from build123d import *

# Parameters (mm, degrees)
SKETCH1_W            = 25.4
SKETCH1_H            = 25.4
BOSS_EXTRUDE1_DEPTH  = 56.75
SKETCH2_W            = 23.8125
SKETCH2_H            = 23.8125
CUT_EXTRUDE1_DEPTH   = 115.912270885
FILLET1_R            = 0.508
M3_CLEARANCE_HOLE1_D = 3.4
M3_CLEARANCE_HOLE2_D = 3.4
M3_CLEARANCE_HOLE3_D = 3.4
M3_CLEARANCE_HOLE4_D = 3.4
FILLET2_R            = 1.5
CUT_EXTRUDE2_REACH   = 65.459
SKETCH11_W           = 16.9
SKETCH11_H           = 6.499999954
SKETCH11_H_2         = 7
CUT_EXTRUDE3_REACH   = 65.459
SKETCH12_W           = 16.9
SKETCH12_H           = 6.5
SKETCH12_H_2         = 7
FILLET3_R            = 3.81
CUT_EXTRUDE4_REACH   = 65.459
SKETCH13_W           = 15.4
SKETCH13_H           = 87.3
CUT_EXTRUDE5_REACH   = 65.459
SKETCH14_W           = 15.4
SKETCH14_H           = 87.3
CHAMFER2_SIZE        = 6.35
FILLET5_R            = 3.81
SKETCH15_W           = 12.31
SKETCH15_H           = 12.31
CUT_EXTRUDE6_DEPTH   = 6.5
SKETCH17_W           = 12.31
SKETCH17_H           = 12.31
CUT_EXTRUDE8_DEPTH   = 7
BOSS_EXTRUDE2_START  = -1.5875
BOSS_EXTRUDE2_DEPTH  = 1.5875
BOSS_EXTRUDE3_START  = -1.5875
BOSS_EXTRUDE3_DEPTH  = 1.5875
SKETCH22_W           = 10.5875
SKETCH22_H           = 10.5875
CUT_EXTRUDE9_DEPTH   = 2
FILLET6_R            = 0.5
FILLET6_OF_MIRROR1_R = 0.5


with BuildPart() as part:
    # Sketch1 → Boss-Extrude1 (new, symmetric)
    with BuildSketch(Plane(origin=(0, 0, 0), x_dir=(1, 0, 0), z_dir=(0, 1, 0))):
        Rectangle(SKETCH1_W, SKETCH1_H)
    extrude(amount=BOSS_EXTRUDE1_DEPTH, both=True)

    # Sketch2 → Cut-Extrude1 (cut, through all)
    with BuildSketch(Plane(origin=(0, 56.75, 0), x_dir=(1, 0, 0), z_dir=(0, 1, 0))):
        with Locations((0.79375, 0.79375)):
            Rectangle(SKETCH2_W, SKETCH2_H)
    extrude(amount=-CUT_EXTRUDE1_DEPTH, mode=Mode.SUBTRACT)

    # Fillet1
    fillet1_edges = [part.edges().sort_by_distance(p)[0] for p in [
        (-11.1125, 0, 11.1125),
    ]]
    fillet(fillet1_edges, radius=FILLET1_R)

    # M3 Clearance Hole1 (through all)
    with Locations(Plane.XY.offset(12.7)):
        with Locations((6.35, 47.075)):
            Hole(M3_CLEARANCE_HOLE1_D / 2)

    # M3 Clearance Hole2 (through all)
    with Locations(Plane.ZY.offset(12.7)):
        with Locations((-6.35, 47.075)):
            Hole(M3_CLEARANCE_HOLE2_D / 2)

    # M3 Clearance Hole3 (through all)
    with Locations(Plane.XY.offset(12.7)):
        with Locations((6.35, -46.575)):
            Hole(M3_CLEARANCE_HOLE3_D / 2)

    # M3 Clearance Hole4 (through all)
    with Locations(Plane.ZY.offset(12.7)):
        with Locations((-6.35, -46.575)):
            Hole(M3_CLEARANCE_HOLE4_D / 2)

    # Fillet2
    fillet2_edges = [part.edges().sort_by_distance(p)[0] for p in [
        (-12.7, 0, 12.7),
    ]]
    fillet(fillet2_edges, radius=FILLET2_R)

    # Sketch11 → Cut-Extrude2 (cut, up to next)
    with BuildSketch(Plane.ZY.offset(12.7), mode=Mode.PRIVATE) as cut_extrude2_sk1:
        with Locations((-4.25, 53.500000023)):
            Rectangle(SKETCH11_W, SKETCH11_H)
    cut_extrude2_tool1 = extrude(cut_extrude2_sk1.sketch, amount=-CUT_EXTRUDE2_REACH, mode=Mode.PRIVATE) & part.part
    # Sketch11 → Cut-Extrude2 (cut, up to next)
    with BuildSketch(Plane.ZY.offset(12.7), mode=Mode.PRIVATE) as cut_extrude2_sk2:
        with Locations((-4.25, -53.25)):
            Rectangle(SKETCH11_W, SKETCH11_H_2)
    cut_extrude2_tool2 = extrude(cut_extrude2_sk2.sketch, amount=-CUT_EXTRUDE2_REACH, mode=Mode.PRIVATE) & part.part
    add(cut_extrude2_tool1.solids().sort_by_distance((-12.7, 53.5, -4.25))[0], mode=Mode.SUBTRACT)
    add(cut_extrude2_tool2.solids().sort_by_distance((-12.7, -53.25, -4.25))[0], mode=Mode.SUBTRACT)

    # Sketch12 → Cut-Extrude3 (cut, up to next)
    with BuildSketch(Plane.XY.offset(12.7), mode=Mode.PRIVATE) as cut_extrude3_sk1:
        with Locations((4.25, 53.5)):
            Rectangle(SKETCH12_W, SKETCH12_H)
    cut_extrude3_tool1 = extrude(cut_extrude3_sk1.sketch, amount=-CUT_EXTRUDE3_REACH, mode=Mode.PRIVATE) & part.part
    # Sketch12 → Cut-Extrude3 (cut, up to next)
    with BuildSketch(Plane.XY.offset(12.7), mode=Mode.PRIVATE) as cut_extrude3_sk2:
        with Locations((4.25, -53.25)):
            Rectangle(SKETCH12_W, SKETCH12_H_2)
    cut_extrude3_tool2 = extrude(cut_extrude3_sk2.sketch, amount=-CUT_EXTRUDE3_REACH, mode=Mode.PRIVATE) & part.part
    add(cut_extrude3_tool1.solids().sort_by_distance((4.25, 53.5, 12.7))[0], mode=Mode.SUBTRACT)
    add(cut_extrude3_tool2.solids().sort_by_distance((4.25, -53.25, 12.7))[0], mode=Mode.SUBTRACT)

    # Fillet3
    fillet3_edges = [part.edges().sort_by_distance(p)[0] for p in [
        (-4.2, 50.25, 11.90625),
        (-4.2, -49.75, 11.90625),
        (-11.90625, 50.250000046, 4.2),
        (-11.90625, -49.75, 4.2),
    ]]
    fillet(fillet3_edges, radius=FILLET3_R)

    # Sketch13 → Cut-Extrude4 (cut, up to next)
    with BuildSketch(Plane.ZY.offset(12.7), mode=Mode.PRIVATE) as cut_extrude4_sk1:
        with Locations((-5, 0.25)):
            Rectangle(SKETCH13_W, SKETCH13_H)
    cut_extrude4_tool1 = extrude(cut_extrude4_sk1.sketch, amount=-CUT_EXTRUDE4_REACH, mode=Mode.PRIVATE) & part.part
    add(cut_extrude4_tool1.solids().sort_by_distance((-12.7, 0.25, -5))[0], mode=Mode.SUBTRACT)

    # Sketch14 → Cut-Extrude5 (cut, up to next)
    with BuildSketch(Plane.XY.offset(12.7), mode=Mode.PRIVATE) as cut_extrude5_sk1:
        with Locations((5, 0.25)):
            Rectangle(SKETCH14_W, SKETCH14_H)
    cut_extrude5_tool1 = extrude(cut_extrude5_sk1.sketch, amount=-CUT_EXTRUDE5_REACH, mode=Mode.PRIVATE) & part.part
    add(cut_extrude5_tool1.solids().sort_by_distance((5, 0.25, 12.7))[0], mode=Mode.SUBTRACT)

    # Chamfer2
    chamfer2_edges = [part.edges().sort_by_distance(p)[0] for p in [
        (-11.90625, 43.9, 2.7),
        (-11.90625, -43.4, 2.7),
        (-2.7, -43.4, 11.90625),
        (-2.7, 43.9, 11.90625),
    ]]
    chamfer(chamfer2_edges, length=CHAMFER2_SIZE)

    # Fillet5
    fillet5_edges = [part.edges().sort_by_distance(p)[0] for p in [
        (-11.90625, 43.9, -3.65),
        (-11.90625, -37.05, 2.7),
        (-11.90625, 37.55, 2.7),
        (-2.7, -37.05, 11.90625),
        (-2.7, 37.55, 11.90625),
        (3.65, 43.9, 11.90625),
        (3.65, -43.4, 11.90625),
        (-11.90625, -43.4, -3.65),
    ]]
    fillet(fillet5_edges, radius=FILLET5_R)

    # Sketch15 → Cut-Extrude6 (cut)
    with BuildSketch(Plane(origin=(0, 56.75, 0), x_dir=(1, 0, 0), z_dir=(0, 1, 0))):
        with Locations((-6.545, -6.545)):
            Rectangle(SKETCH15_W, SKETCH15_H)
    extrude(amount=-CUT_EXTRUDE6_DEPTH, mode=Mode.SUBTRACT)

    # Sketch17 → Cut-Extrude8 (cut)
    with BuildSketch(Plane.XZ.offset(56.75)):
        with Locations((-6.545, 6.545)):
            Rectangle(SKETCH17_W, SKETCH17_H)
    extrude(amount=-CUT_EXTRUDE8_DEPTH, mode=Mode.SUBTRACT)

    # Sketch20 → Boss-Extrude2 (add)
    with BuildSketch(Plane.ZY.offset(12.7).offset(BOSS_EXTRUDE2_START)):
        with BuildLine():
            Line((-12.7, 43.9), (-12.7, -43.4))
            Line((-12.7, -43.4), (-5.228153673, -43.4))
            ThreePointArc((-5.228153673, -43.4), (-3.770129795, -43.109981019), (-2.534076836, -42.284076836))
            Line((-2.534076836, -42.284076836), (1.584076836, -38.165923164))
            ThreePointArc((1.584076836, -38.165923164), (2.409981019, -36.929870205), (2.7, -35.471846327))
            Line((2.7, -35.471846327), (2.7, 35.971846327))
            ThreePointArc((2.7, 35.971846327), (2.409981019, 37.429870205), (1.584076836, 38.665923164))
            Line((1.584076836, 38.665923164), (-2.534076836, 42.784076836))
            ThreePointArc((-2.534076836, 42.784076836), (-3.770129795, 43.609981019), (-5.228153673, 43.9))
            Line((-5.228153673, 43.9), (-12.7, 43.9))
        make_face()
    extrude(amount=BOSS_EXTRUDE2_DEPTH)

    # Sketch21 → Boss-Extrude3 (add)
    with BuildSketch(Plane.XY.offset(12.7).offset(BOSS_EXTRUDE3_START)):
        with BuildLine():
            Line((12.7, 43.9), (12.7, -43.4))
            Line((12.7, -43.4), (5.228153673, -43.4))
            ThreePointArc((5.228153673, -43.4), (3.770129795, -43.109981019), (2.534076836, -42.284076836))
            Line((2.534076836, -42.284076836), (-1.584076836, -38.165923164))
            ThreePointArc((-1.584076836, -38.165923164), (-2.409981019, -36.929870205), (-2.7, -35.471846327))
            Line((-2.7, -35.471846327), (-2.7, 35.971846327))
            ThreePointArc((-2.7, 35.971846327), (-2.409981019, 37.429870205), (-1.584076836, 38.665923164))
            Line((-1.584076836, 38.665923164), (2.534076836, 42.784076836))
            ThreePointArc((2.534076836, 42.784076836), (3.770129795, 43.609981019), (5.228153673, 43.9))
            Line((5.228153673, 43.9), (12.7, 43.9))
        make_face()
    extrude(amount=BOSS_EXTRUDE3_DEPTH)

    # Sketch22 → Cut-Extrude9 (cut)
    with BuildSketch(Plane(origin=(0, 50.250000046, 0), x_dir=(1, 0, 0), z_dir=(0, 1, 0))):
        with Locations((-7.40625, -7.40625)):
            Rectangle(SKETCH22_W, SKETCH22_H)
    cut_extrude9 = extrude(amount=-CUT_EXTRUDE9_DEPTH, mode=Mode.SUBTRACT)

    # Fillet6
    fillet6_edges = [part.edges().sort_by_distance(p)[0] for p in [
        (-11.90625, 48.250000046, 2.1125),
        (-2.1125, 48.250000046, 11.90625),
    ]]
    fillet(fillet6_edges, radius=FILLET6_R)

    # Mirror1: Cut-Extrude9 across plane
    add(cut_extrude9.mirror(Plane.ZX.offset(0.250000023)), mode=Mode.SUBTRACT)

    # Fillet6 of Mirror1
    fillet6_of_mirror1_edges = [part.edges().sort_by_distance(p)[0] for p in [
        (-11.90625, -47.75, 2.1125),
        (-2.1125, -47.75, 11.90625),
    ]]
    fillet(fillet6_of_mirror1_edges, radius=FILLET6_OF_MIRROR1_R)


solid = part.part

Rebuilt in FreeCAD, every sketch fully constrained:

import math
import FreeCAD as App
import Part
import Sketcher


def edges_at(feature, points):
    """Names of the edges that pass closest to the given points."""
    edges = feature.Shape.Edges
    near = lambda p: min(range(len(edges)), key=lambda i: edges[i].distToShape(Part.Vertex(*p))[0])
    return sorted({f"Edge{near(p) + 1}" for p in points})


def add_polygon(sketch, points):
    """Adds a closed chain of lines whose ends are joined by coincident constraints."""
    first, n = sketch.GeometryCount, len(points)
    for a, b in zip(points, points[1:] + points[:1]):
        sketch.addGeometry(Part.LineSegment(App.Vector(*a, 0), App.Vector(*b, 0)), False)
    for i in range(n):
        sketch.addConstraint(Sketcher.Constraint("Coincident", first + i, 2, first + (i + 1) % n, 1))

doc = App.newDocument("Part")
params = doc.addObject("Spreadsheet::Sheet", "Params")
for row, (alias, value) in enumerate([
    ("sketch1_width", "25.4 mm"),
    ("pad1_length", "113.5 mm"),
    ("fillet_radius", "0.508 mm"),
    ("sketch3_diameter", "3.4 mm"),
    ("hole_diameter", "3.4 mm"),
    ("sketch4_diameter", "3.4 mm"),
    ("hole2_diameter", "3.4 mm"),
    ("sketch5_diameter", "3.4 mm"),
    ("hole3_diameter", "3.4 mm"),
    ("sketch6_diameter", "3.4 mm"),
    ("hole4_diameter", "3.4 mm"),
    ("fillet2_radius", "1.5 mm"),
    ("sketch7_width", "6.5 mm"),
    ("sketch7_height", "16.9 mm"),
    ("sketch8_width", "7 mm"),
    ("sketch8_height", "16.9 mm"),
    ("sketch9_width", "16.9 mm"),
    ("sketch9_height", "6.5 mm"),
    ("sketch10_height", "7 mm"),
    ("sketch10_width", "16.9 mm"),
    ("fillet3_radius", "3.81 mm"),
    ("sketch11_width", "87.3 mm"),
    ("sketch11_height", "15.4 mm"),
    ("sketch12_width", "15.4 mm"),
    ("sketch12_height", "87.3 mm"),
    ("chamfer_size", "6.35 mm"),
    ("fillet4_radius", "3.81 mm"),
    ("sketch13_width", "12.31 mm"),
    ("pocket8_length", "6.5 mm"),
    ("sketch14_width", "12.31 mm"),
    ("pocket9_length", "7 mm"),
    ("sketch15_radius", "3.81 mm"),
    ("sketch15_width", "87.3 mm"),
    ("pad2_length", "1.5875 mm"),
    ("sketch16_radius", "3.81 mm"),
    ("sketch16_height", "87.3 mm"),
    ("pad3_length", "1.5875 mm"),
    ("pocket10_length", "2 mm"),
    ("fillet5_radius", "0.5 mm"),
    ("fillet6_radius", "0.5 mm"),
], start=1):
    params.set(f"A{row}", alias)
    params.set(f"B{row}", "=" + value)
    params.setAlias(f"B{row}", alias)

body = doc.addObject("PartDesign::Body", "Body")

sketch1 = body.newObject("Sketcher::SketchObject", "Sketch")
sketch1.AttachmentSupport = (doc.getObject("XZ_Plane"), [""])
sketch1.MapMode = "FlatFace"
add_polygon(sketch1, [(-13, -13), (-13, 13), (13, 13), (13, -13)])
sketch1.addConstraint([
    Sketcher.Constraint("Vertical", 0),
    Sketcher.Constraint("Horizontal", 1),
    Sketcher.Constraint("Vertical", 2),
    Sketcher.Constraint("Horizontal", 3),
    Sketcher.Constraint("Symmetric", 0, 2, 2, 2, -1, 1),
    Sketcher.Constraint("Equal", 3, 0),
    Sketcher.Constraint("DistanceX", 1, 1, 1, 2, 25.4),
])
sketch1.setExpression("Constraints[10]", "Params.sketch1_width")
pad1 = body.newObject("PartDesign::Pad", "Pad")
pad1.Profile = sketch1
pad1.setExpression("Length", "Params.pad1_length")
pad1.Midplane = True

sketch2 = body.newObject("Sketcher::SketchObject", "Sketch001")
sketch2.AttachmentSupport = (doc.getObject("XZ_Plane"), [""])
sketch2.MapMode = "FlatFace"
sketch2.AttachmentOffset = App.Placement(App.Vector(0, 0, -56.75), App.Rotation())
add_polygon(sketch2, [(-11, -13), (-11, 11), (13, 11), (13, -13)])
sketch2.addConstraint([
    Sketcher.Constraint("Vertical", 0),
    Sketcher.Constraint("Horizontal", 1),
    Sketcher.Constraint("Vertical", 2),
    Sketcher.Constraint("Horizontal", 3),
    Sketcher.Constraint("Equal", 3, 0),
    Sketcher.Constraint("DistanceX", -1, 1, 1, 2, 12.7),
    Sketcher.Constraint("DistanceY", 2, 2, -1, 1, 12.7),
    Sketcher.Constraint("DistanceX", 1, 1, 1, 2, 23.8125),
])
pocket1 = body.newObject("PartDesign::Pocket", "Pocket")
pocket1.Profile = sketch2
pocket1.Type = "ThroughAll"
pocket1.Reversed = True
doc.recompute()

fillet = body.newObject("PartDesign::Fillet", "Fillet")
fillet.Base = (pocket1, edges_at(pocket1, [(-11.113, 0, 11.113)]))
fillet.setExpression("Radius", "Params.fillet_radius")

sketch3 = body.newObject("Sketcher::SketchObject", "Sketch002")
sketch3.AttachmentSupport = (doc.getObject("XY_Plane"), [""])
sketch3.MapMode = "FlatFace"
sketch3.AttachmentOffset = App.Placement(App.Vector(0, 0, 12.7), App.Rotation())
sketch3.addGeometry(Part.Circle(App.Vector(6.3, 47.1, 0), App.Vector(0, 0, 1), 1.7), False)
sketch3.addConstraint([
    Sketcher.Constraint("Diameter", 0, 3.4),
    Sketcher.Constraint("DistanceX", -1, 1, 0, 3, 6.35),
    Sketcher.Constraint("DistanceY", -1, 1, 0, 3, 47.075),
])
sketch3.setExpression("Constraints[0]", "Params.sketch3_diameter")
doc.recompute()
hole = body.newObject("PartDesign::Hole", "Hole")
hole.Profile = sketch3
hole.ThreadType = "None"
hole.setExpression("Diameter", "Params.hole_diameter")
hole.DepthType = "ThroughAll"

sketch4 = body.newObject("Sketcher::SketchObject", "Sketch003")
sketch4.AttachmentSupport = (doc.getObject("YZ_Plane"), [""])
sketch4.MapMode = "FlatFace"
sketch4.AttachmentOffset = App.Placement(App.Vector(0, 0, -12.7), App.Rotation())
sketch4.addGeometry(Part.Circle(App.Vector(47.1, -6.3, 0), App.Vector(0, 0, 1), 1.7), False)
sketch4.addConstraint([
    Sketcher.Constraint("Diameter", 0, 3.4),
    Sketcher.Constraint("DistanceY", 0, 3, -1, 1, 6.35),
    Sketcher.Constraint("DistanceX", -1, 1, 0, 3, 47.075),
])
sketch4.setExpression("Constraints[0]", "Params.sketch4_diameter")
doc.recompute()
hole2 = body.newObject("PartDesign::Hole", "Hole001")
hole2.Profile = sketch4
hole2.ThreadType = "None"
hole2.setExpression("Diameter", "Params.hole2_diameter")
hole2.DepthType = "ThroughAll"
hole2.Reversed = True

sketch5 = body.newObject("Sketcher::SketchObject", "Sketch004")
sketch5.AttachmentSupport = (doc.getObject("XY_Plane"), [""])
sketch5.MapMode = "FlatFace"
sketch5.AttachmentOffset = App.Placement(App.Vector(0, 0, 12.7), App.Rotation())
sketch5.addGeometry(Part.Circle(App.Vector(6.3, -46.6, 0), App.Vector(0, 0, 1), 1.7), False)
sketch5.addConstraint([
    Sketcher.Constraint("Diameter", 0, 3.4),
    Sketcher.Constraint("DistanceX", -1, 1, 0, 3, 6.35),
    Sketcher.Constraint("DistanceY", 0, 3, -1, 1, 46.575),
])
sketch5.setExpression("Constraints[0]", "Params.sketch5_diameter")
doc.recompute()
hole3 = body.newObject("PartDesign::Hole", "Hole002")
hole3.Profile = sketch5
hole3.ThreadType = "None"
hole3.setExpression("Diameter", "Params.hole3_diameter")
hole3.DepthType = "ThroughAll"

sketch6 = body.newObject("Sketcher::SketchObject", "Sketch005")
sketch6.AttachmentSupport = (doc.getObject("YZ_Plane"), [""])
sketch6.MapMode = "FlatFace"
sketch6.AttachmentOffset = App.Placement(App.Vector(0, 0, -12.7), App.Rotation())
sketch6.addGeometry(Part.Circle(App.Vector(-46.6, -6.3, 0), App.Vector(0, 0, 1), 1.7), False)
sketch6.addConstraint([
    Sketcher.Constraint("Diameter", 0, 3.4),
    Sketcher.Constraint("DistanceY", 0, 3, -1, 1, 6.35),
    Sketcher.Constraint("DistanceX", 0, 3, -1, 1, 46.575),
])
sketch6.setExpression("Constraints[0]", "Params.sketch6_diameter")
doc.recompute()
hole4 = body.newObject("PartDesign::Hole", "Hole003")
hole4.Profile = sketch6
hole4.ThreadType = "None"
hole4.setExpression("Diameter", "Params.hole4_diameter")
hole4.DepthType = "ThroughAll"
hole4.Reversed = True
doc.recompute()

fillet2 = body.newObject("PartDesign::Fillet", "Fillet001")
fillet2.Base = (hole4, edges_at(hole4, [(-12.7, 0, 12.7)]))
fillet2.setExpression("Radius", "Params.fillet2_radius")

sketch7 = body.newObject("Sketcher::SketchObject", "Sketch006")
sketch7.AttachmentSupport = (doc.getObject("YZ_Plane"), [""])
sketch7.MapMode = "FlatFace"
sketch7.AttachmentOffset = App.Placement(App.Vector(0, 0, -12.7), App.Rotation())
add_polygon(sketch7, [(57, -13), (50, -13), (50, 4), (57, 4)])
sketch7.addConstraint([
    Sketcher.Constraint("Horizontal", 0),
    Sketcher.Constraint("Vertical", 1),
    Sketcher.Constraint("Horizontal", 2),
    Sketcher.Constraint("Vertical", 3),
    Sketcher.Constraint("DistanceX", 0, 2, 0, 1, 6.5),
    Sketcher.Constraint("DistanceY", 1, 1, 1, 2, 16.9),
    Sketcher.Constraint("DistanceY", 0, 2, -1, 1, 12.7),
    Sketcher.Constraint("DistanceX", -1, 1, 0, 2, 50.25),
])
sketch7.setExpression("Constraints[8]", "Params.sketch7_width")
sketch7.setExpression("Constraints[9]", "Params.sketch7_height")
pocket2 = body.newObject("PartDesign::Pocket", "Pocket001")
pocket2.Profile = sketch7
pocket2.Type = "UpToFirst"
pocket2.Reversed = True

sketch8 = body.newObject("Sketcher::SketchObject", "Sketch007")
sketch8.AttachmentSupport = (doc.getObject("YZ_Plane"), [""])
sketch8.MapMode = "FlatFace"
sketch8.AttachmentOffset = App.Placement(App.Vector(0, 0, -12.7), App.Rotation())
add_polygon(sketch8, [(-50, -13), (-57, -13), (-57, 4), (-50, 4)])
sketch8.addConstraint([
    Sketcher.Constraint("Horizontal", 0),
    Sketcher.Constraint("Vertical", 1),
    Sketcher.Constraint("Horizontal", 2),
    Sketcher.Constraint("Vertical", 3),
    Sketcher.Constraint("DistanceX", 0, 2, 0, 1, 7.0),
    Sketcher.Constraint("DistanceY", 1, 1, 1, 2, 16.9),
    Sketcher.Constraint("DistanceY", 0, 2, -1, 1, 12.7),
    Sketcher.Constraint("DistanceX", 0, 2, -1, 1, 56.75),
])
sketch8.setExpression("Constraints[8]", "Params.sketch8_width")
sketch8.setExpression("Constraints[9]", "Params.sketch8_height")
pocket3 = body.newObject("PartDesign::Pocket", "Pocket002")
pocket3.Profile = sketch8
pocket3.Type = "UpToFirst"
pocket3.Reversed = True

sketch9 = body.newObject("Sketcher::SketchObject", "Sketch008")
sketch9.AttachmentSupport = (doc.getObject("XY_Plane"), [""])
sketch9.MapMode = "FlatFace"
sketch9.AttachmentOffset = App.Placement(App.Vector(0, 0, 12.7), App.Rotation())
add_polygon(sketch9, [(-4, 57), (-4, 50), (13, 50), (13, 57)])
sketch9.addConstraint([
    Sketcher.Constraint("Vertical", 0),
    Sketcher.Constraint("Horizontal", 1),
    Sketcher.Constraint("Vertical", 2),
    Sketcher.Constraint("Horizontal", 3),
    Sketcher.Constraint("DistanceX", 1, 1, 1, 2, 16.9),
    Sketcher.Constraint("DistanceY", 0, 2, 0, 1, 6.5),
    Sketcher.Constraint("DistanceX", 0, 2, -1, 1, 4.2),
    Sketcher.Constraint("DistanceY", -1, 1, 0, 2, 50.25),
])
sketch9.setExpression("Constraints[8]", "Params.sketch9_width")
sketch9.setExpression("Constraints[9]", "Params.sketch9_height")
pocket4 = body.newObject("PartDesign::Pocket", "Pocket003")
pocket4.Profile = sketch9
pocket4.Type = "UpToFirst"

sketch10 = body.newObject("Sketcher::SketchObject", "Sketch009")
sketch10.AttachmentSupport = (doc.getObject("XY_Plane"), [""])
sketch10.MapMode = "FlatFace"
sketch10.AttachmentOffset = App.Placement(App.Vector(0, 0, 12.7), App.Rotation())
add_polygon(sketch10, [(-4, -50), (-4, -57), (13, -57), (13, -50)])
sketch10.addConstraint([
    Sketcher.Constraint("Vertical", 0),
    Sketcher.Constraint("Horizontal", 1),
    Sketcher.Constraint("Vertical", 2),
    Sketcher.Constraint("Horizontal", 3),
    Sketcher.Constraint("DistanceY", 0, 2, 0, 1, 7.0),
    Sketcher.Constraint("DistanceX", 1, 1, 1, 2, 16.9),
    Sketcher.Constraint("DistanceX", 0, 2, -1, 1, 4.2),
    Sketcher.Constraint("DistanceY", 0, 2, -1, 1, 56.75),
])
sketch10.setExpression("Constraints[8]", "Params.sketch10_height")
sketch10.setExpression("Constraints[9]", "Params.sketch10_width")
pocket5 = body.newObject("PartDesign::Pocket", "Pocket004")
pocket5.Profile = sketch10
pocket5.Type = "UpToFirst"
doc.recompute()

fillet3 = body.newObject("PartDesign::Fillet", "Fillet002")
fillet3.Base = (pocket5, edges_at(pocket5, [
    (-4.2, 50.25, 11.906),
    (-4.2, -49.75, 11.906),
    (-11.906, 50.25, 4.2),
    (-11.906, -49.75, 4.2),
]))
fillet3.setExpression("Radius", "Params.fillet3_radius")

sketch11 = body.newObject("Sketcher::SketchObject", "Sketch010")
sketch11.AttachmentSupport = (doc.getObject("YZ_Plane"), [""])
sketch11.MapMode = "FlatFace"
sketch11.AttachmentOffset = App.Placement(App.Vector(0, 0, -12.7), App.Rotation())
add_polygon(sketch11, [(44, -13), (-43, -13), (-43, 3), (44, 3)])
sketch11.addConstraint([
    Sketcher.Constraint("Horizontal", 0),
    Sketcher.Constraint("Vertical", 1),
    Sketcher.Constraint("Horizontal", 2),
    Sketcher.Constraint("Vertical", 3),
    Sketcher.Constraint("DistanceX", 0, 2, 0, 1, 87.3),
    Sketcher.Constraint("DistanceY", 1, 1, 1, 2, 15.4),
    Sketcher.Constraint("DistanceX", 0, 2, -1, 1, 43.4),
    Sketcher.Constraint("DistanceY", 0, 2, -1, 1, 12.7),
])
sketch11.setExpression("Constraints[8]", "Params.sketch11_width")
sketch11.setExpression("Constraints[9]", "Params.sketch11_height")
pocket6 = body.newObject("PartDesign::Pocket", "Pocket005")
pocket6.Profile = sketch11
pocket6.Type = "UpToFirst"
pocket6.Reversed = True

sketch12 = body.newObject("Sketcher::SketchObject", "Sketch011")
sketch12.AttachmentSupport = (doc.getObject("XY_Plane"), [""])
sketch12.MapMode = "FlatFace"
sketch12.AttachmentOffset = App.Placement(App.Vector(0, 0, 12.7), App.Rotation())
add_polygon(sketch12, [(-3, 44), (-3, -43), (13, -43), (13, 44)])
sketch12.addConstraint([
    Sketcher.Constraint("Vertical", 0),
    Sketcher.Constraint("Horizontal", 1),
    Sketcher.Constraint("Vertical", 2),
    Sketcher.Constraint("Horizontal", 3),
    Sketcher.Constraint("DistanceX", 1, 1, 1, 2, 15.4),
    Sketcher.Constraint("DistanceY", 0, 2, 0, 1, 87.3),
    Sketcher.Constraint("DistanceX", 0, 2, -1, 1, 2.7),
    Sketcher.Constraint("DistanceY", 0, 2, -1, 1, 43.4),
])
sketch12.setExpression("Constraints[8]", "Params.sketch12_width")
sketch12.setExpression("Constraints[9]", "Params.sketch12_height")
pocket7 = body.newObject("PartDesign::Pocket", "Pocket006")
pocket7.Profile = sketch12
pocket7.Type = "UpToFirst"
doc.recompute()

chamfer = body.newObject("PartDesign::Chamfer", "Chamfer")
chamfer.Base = (pocket7, edges_at(pocket7, [
    (-11.906, 43.9, 2.7),
    (-11.906, -43.4, 2.7),
    (-2.7, -43.4, 11.906),
    (-2.7, 43.9, 11.906),
]))
chamfer.setExpression("Size", "Params.chamfer_size")
doc.recompute()

fillet4 = body.newObject("PartDesign::Fillet", "Fillet003")
fillet4.Base = (chamfer, edges_at(chamfer, [
    (-11.906, 43.9, -3.65),
    (-11.906, -37.05, 2.7),
    (-11.906, 37.55, 2.7),
    (-2.7, -37.05, 11.906),
    (-2.7, 37.55, 11.906),
    (3.65, 43.9, 11.906),
    (3.65, -43.4, 11.906),
    (-11.906, -43.4, -3.65),
]))
fillet4.setExpression("Radius", "Params.fillet4_radius")

sketch13 = body.newObject("Sketcher::SketchObject", "Sketch012")
sketch13.AttachmentSupport = (doc.getObject("XZ_Plane"), [""])
sketch13.MapMode = "FlatFace"
sketch13.AttachmentOffset = App.Placement(App.Vector(0, 0, -56.75), App.Rotation())
add_polygon(sketch13, [(-13, 0), (-13, 13), (0, 13), (0, 0)])
sketch13.addConstraint([
    Sketcher.Constraint("Vertical", 0),
    Sketcher.Constraint("Horizontal", 1),
    Sketcher.Constraint("Vertical", 2),
    Sketcher.Constraint("Horizontal", 3),
    Sketcher.Constraint("Equal", 3, 0),
    Sketcher.Constraint("DistanceX", 1, 1, 1, 2, 12.31),
    Sketcher.Constraint("DistanceX", 0, 2, -1, 1, 12.7),
    Sketcher.Constraint("DistanceY", -1, 1, 0, 2, 12.7),
])
sketch13.setExpression("Constraints[9]", "Params.sketch13_width")
pocket8 = body.newObject("PartDesign::Pocket", "Pocket007")
pocket8.Profile = sketch13
pocket8.setExpression("Length", "Params.pocket8_length")
pocket8.Reversed = True

sketch14 = body.newObject("Sketcher::SketchObject", "Sketch013")
sketch14.AttachmentSupport = (doc.getObject("XZ_Plane"), [""])
sketch14.MapMode = "FlatFace"
sketch14.AttachmentOffset = App.Placement(App.Vector(0, 0, 56.75), App.Rotation())
add_polygon(sketch14, [(-13, 13), (-13, 0), (0, 0), (0, 13)])
sketch14.addConstraint([
    Sketcher.Constraint("Vertical", 0),
    Sketcher.Constraint("Horizontal", 1),
    Sketcher.Constraint("Vertical", 2),
    Sketcher.Constraint("Horizontal", 3),
    Sketcher.Constraint("Equal", 3, 0),
    Sketcher.Constraint("DistanceX", 1, 1, 1, 2, 12.31),
    Sketcher.Constraint("DistanceX", 0, 2, -1, 1, 12.7),
    Sketcher.Constraint("DistanceY", -1, 1, 2, 2, 12.7),
])
sketch14.setExpression("Constraints[9]", "Params.sketch14_width")
pocket9 = body.newObject("PartDesign::Pocket", "Pocket008")
pocket9.Profile = sketch14
pocket9.setExpression("Length", "Params.pocket9_length")

sketch15 = body.newObject("Sketcher::SketchObject", "Sketch014")
sketch15.AttachmentSupport = (doc.getObject("YZ_Plane"), [""])
sketch15.MapMode = "FlatFace"
sketch15.AttachmentOffset = App.Placement(App.Vector(0, 0, -11.1125), App.Rotation())
sketch15.addGeometry([
    Part.LineSegment(App.Vector(43.9, -12.7, 0), App.Vector(-43.4, -12.7, 0)),
    Part.LineSegment(App.Vector(-43.4, -12.7, 0), App.Vector(-43.4, -5.2, 0)),
    Part.ArcOfCircle(Part.Circle(App.Vector(-39.6, -5.2, 0), App.Vector(0, 0, 1), 3.8), math.radians(135), math.radians(180)),
    Part.LineSegment(App.Vector(-42.3, -2.5, 0), App.Vector(-38.2, 1.6, 0)),
    Part.ArcOfCircle(Part.Circle(App.Vector(-35.5, -1.1, 0), App.Vector(0, 0, 1), 3.8), math.radians(90), math.radians(135)),
    Part.LineSegment(App.Vector(-35.5, 2.7, 0), App.Vector(36, 2.7, 0)),
    Part.ArcOfCircle(Part.Circle(App.Vector(36, -1.1, 0), App.Vector(0, 0, 1), 3.8), math.radians(45), math.radians(90)),
    Part.LineSegment(App.Vector(38.7, 1.6, 0), App.Vector(42.8, -2.5, 0)),
    Part.ArcOfCircle(Part.Circle(App.Vector(40.1, -5.2, 0), App.Vector(0, 0, 1), 3.8), math.radians(0), math.radians(45)),
    Part.LineSegment(App.Vector(43.9, -5.2, 0), App.Vector(43.9, -12.7, 0)),
], False)
sketch15.addConstraint([
    Sketcher.Constraint("Coincident", 0, 2, 1, 1),
    Sketcher.Constraint("Tangent", 1, 2, 2, 2),
    Sketcher.Constraint("Tangent", 2, 1, 3, 1),
    Sketcher.Constraint("Tangent", 3, 2, 4, 2),
    Sketcher.Constraint("Tangent", 4, 1, 5, 1),
    Sketcher.Constraint("Tangent", 5, 2, 6, 2),
    Sketcher.Constraint("Tangent", 6, 1, 7, 1),
    Sketcher.Constraint("Tangent", 7, 2, 8, 2),
    Sketcher.Constraint("Tangent", 8, 1, 9, 1),
    Sketcher.Constraint("Coincident", 9, 2, 0, 1),
    Sketcher.Constraint("Horizontal", 0),
    Sketcher.Constraint("Vertical", 1),
    Sketcher.Constraint("Horizontal", 5),
    Sketcher.Constraint("Vertical", 9),
    Sketcher.Constraint("Equal", 2, 4),
    Sketcher.Constraint("Equal", 4, 6),
    Sketcher.Constraint("Equal", 6, 8),
    Sketcher.Constraint("Perpendicular", 3, 7),
    Sketcher.Constraint("Horizontal", 2, 3, 8, 3),
    Sketcher.Constraint("Horizontal", 3, 2, 6, 1),
    Sketcher.Constraint("Radius", 2, 3.81),
    Sketcher.Constraint("DistanceX", 0, 2, 0, 1, 87.3),
    Sketcher.Constraint("DistanceX", 0, 2, -1, 1, 43.4),
    Sketcher.Constraint("DistanceY", 0, 2, -1, 1, 12.7),
    Sketcher.Constraint("DistanceY", -1, 1, 4, 1, 2.7),
    Sketcher.Constraint("Distance", 3, 5.823949),
])
sketch15.setExpression("Constraints[20]", "Params.sketch15_radius")
sketch15.setExpression("Constraints[21]", "Params.sketch15_width")
pad2 = body.newObject("PartDesign::Pad", "Pad001")
pad2.Profile = sketch15
pad2.setExpression("Length", "Params.pad2_length")
pad2.Reversed = True

sketch16 = body.newObject("Sketcher::SketchObject", "Sketch015")
sketch16.AttachmentSupport = (doc.getObject("XY_Plane"), [""])
sketch16.MapMode = "FlatFace"
sketch16.AttachmentOffset = App.Placement(App.Vector(0, 0, 11.1125), App.Rotation())
sketch16.addGeometry([
    Part.LineSegment(App.Vector(12.7, -43.4, 0), App.Vector(12.7, 43.9, 0)),
    Part.LineSegment(App.Vector(12.7, 43.9, 0), App.Vector(5.2, 43.9, 0)),
    Part.ArcOfCircle(Part.Circle(App.Vector(5.2, 40.1, 0), App.Vector(0, 0, 1), 3.8), math.radians(90), math.radians(135)),
    Part.LineSegment(App.Vector(2.5, 42.8, 0), App.Vector(-1.6, 38.7, 0)),
    Part.ArcOfCircle(Part.Circle(App.Vector(1.1, 36, 0), App.Vector(0, 0, 1), 3.8), math.radians(135), math.radians(180)),
    Part.LineSegment(App.Vector(-2.7, 36, 0), App.Vector(-2.7, -35.5, 0)),
    Part.ArcOfCircle(Part.Circle(App.Vector(1.1, -35.5, 0), App.Vector(0, 0, 1), 3.8), math.radians(180), math.radians(225)),
    Part.LineSegment(App.Vector(-1.6, -38.2, 0), App.Vector(2.5, -42.3, 0)),
    Part.ArcOfCircle(Part.Circle(App.Vector(5.2, -39.6, 0), App.Vector(0, 0, 1), 3.8), math.radians(-135), math.radians(-90)),
    Part.LineSegment(App.Vector(5.2, -43.4, 0), App.Vector(12.7, -43.4, 0)),
], False)
sketch16.addConstraint([
    Sketcher.Constraint("Coincident", 0, 2, 1, 1),
    Sketcher.Constraint("Tangent", 1, 2, 2, 1),
    Sketcher.Constraint("Tangent", 2, 2, 3, 1),
    Sketcher.Constraint("Tangent", 3, 2, 4, 1),
    Sketcher.Constraint("Tangent", 4, 2, 5, 1),
    Sketcher.Constraint("Tangent", 5, 2, 6, 1),
    Sketcher.Constraint("Tangent", 6, 2, 7, 1),
    Sketcher.Constraint("Tangent", 7, 2, 8, 1),
    Sketcher.Constraint("Tangent", 8, 2, 9, 1),
    Sketcher.Constraint("Coincident", 9, 2, 0, 1),
    Sketcher.Constraint("Vertical", 0),
    Sketcher.Constraint("Horizontal", 1),
    Sketcher.Constraint("Vertical", 5),
    Sketcher.Constraint("Horizontal", 9),
    Sketcher.Constraint("Equal", 2, 4),
    Sketcher.Constraint("Equal", 4, 6),
    Sketcher.Constraint("Equal", 6, 8),
    Sketcher.Constraint("Perpendicular", 3, 7),
    Sketcher.Constraint("Vertical", 2, 3, 8, 3),
    Sketcher.Constraint("Vertical", 3, 2, 6, 2),
    Sketcher.Constraint("Radius", 2, 3.81),
    Sketcher.Constraint("DistanceY", 0, 1, 0, 2, 87.3),
    Sketcher.Constraint("DistanceX", -1, 1, 0, 2, 12.7),
    Sketcher.Constraint("DistanceY", -1, 1, 0, 2, 43.9),
    Sketcher.Constraint("DistanceX", 4, 2, -1, 1, 2.7),
    Sketcher.Constraint("Distance", 3, 5.823949),
])
sketch16.setExpression("Constraints[20]", "Params.sketch16_radius")
sketch16.setExpression("Constraints[21]", "Params.sketch16_height")
pad3 = body.newObject("PartDesign::Pad", "Pad002")
pad3.Profile = sketch16
pad3.setExpression("Length", "Params.pad3_length")

sketch17 = body.newObject("Sketcher::SketchObject", "Sketch016")
sketch17.AttachmentSupport = (doc.getObject("XZ_Plane"), [""])
sketch17.MapMode = "FlatFace"
sketch17.AttachmentOffset = App.Placement(App.Vector(0, 0, -50.25), App.Rotation())
add_polygon(sketch17, [(-13, 2), (-13, 13), (-2, 13), (-2, 2)])
sketch17.addConstraint([
    Sketcher.Constraint("Vertical", 0),
    Sketcher.Constraint("Horizontal", 1),
    Sketcher.Constraint("Vertical", 2),
    Sketcher.Constraint("Horizontal", 3),
    Sketcher.Constraint("Equal", 3, 0),
    Sketcher.Constraint("DistanceX", 0, 2, -1, 1, 12.7),
    Sketcher.Constraint("DistanceY", -1, 1, 0, 2, 12.7),
    Sketcher.Constraint("DistanceX", 1, 1, 1, 2, 10.5875),
])
pocket10 = body.newObject("PartDesign::Pocket", "Pocket009")
pocket10.Profile = sketch17
pocket10.setExpression("Length", "Params.pocket10_length")
pocket10.Reversed = True
doc.recompute()

fillet5 = body.newObject("PartDesign::Fillet", "Fillet004")
fillet5.Base = (pocket10, edges_at(pocket10, [(-11.906, 48.25, 2.112), (-2.112, 48.25, 11.906)]))
fillet5.setExpression("Radius", "Params.fillet5_radius")
doc.recompute()

datumplane = body.newObject("PartDesign::Plane", "DatumPlane")
datumplane.AttachmentSupport = (doc.getObject("XZ_Plane"), [""])
datumplane.MapMode = "FlatFace"
datumplane.AttachmentOffset = App.Placement(App.Vector(0, 0, -0.25), App.Rotation())
mirrored = body.newObject("PartDesign::Mirrored", "Mirrored")
mirrored.Originals = [pocket10]
mirrored.MirrorPlane = (datumplane, [""])
body.Tip = mirrored
doc.recompute()

fillet6 = body.newObject("PartDesign::Fillet", "Fillet005")
fillet6.Base = (mirrored, edges_at(mirrored, [(-11.906, -47.75, 2.112), (-2.112, -47.75, 11.906)]))
fillet6.setExpression("Radius", "Params.fillet6_radius")

doc.recompute()
